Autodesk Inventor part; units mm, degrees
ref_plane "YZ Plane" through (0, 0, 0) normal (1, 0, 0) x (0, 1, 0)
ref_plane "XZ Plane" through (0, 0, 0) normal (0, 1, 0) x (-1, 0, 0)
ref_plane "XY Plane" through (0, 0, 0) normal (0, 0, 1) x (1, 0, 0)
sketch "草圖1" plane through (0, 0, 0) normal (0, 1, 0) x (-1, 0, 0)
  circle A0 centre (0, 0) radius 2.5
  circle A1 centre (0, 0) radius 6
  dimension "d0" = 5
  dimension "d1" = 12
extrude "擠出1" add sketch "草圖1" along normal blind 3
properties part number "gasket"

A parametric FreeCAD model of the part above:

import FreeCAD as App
import Part
import Sketcher

doc = App.newDocument("Part")
params = doc.addObject("Spreadsheet::Sheet", "Params")
for row, (alias, value) in enumerate([
    ("sketch1_diameter", "12 mm"),
    ("sketch1_diameter2", "5 mm"),
    ("pad1_length", "3 mm"),
], start=1):
    params.set(f"A{row}", alias)
    params.set(f"B{row}", "=" + value)
    params.setAlias(f"B{row}", alias)

body = doc.addObject("PartDesign::Body", "Body")

sketch1 = doc.addObject("Sketcher::SketchObject", "Sketch")
body.addObject(sketch1)
sketch1.AttachmentSupport = (doc.XZ_Plane, [""])
sketch1.MapMode = "FlatFace"
sketch1.addGeometry([
    Part.Circle(App.Vector(0, 0, 0), App.Vector(0, 0, 1), 6),
    Part.Circle(App.Vector(0, 0, 0), App.Vector(0, 0, 1), 2.5),
], False)
sketch1.addConstraint([
    Sketcher.Constraint("Coincident", 0, 3, -1, 1),
    Sketcher.Constraint("Coincident", 1, 3, -1, 1),
    Sketcher.Constraint("Diameter", 0, 12.0),
    Sketcher.Constraint("Diameter", 1, 5.0),
])
sketch1.setExpression("Constraints[2]", "Params.sketch1_diameter")
sketch1.setExpression("Constraints[3]", "Params.sketch1_diameter2")
pad1 = doc.addObject("PartDesign::Pad", "Pad")
body.addObject(pad1)
pad1.Profile = sketch1
pad1.setExpression("Length", "Params.pad1_length")
pad1.Reversed = True

doc.recompute()
